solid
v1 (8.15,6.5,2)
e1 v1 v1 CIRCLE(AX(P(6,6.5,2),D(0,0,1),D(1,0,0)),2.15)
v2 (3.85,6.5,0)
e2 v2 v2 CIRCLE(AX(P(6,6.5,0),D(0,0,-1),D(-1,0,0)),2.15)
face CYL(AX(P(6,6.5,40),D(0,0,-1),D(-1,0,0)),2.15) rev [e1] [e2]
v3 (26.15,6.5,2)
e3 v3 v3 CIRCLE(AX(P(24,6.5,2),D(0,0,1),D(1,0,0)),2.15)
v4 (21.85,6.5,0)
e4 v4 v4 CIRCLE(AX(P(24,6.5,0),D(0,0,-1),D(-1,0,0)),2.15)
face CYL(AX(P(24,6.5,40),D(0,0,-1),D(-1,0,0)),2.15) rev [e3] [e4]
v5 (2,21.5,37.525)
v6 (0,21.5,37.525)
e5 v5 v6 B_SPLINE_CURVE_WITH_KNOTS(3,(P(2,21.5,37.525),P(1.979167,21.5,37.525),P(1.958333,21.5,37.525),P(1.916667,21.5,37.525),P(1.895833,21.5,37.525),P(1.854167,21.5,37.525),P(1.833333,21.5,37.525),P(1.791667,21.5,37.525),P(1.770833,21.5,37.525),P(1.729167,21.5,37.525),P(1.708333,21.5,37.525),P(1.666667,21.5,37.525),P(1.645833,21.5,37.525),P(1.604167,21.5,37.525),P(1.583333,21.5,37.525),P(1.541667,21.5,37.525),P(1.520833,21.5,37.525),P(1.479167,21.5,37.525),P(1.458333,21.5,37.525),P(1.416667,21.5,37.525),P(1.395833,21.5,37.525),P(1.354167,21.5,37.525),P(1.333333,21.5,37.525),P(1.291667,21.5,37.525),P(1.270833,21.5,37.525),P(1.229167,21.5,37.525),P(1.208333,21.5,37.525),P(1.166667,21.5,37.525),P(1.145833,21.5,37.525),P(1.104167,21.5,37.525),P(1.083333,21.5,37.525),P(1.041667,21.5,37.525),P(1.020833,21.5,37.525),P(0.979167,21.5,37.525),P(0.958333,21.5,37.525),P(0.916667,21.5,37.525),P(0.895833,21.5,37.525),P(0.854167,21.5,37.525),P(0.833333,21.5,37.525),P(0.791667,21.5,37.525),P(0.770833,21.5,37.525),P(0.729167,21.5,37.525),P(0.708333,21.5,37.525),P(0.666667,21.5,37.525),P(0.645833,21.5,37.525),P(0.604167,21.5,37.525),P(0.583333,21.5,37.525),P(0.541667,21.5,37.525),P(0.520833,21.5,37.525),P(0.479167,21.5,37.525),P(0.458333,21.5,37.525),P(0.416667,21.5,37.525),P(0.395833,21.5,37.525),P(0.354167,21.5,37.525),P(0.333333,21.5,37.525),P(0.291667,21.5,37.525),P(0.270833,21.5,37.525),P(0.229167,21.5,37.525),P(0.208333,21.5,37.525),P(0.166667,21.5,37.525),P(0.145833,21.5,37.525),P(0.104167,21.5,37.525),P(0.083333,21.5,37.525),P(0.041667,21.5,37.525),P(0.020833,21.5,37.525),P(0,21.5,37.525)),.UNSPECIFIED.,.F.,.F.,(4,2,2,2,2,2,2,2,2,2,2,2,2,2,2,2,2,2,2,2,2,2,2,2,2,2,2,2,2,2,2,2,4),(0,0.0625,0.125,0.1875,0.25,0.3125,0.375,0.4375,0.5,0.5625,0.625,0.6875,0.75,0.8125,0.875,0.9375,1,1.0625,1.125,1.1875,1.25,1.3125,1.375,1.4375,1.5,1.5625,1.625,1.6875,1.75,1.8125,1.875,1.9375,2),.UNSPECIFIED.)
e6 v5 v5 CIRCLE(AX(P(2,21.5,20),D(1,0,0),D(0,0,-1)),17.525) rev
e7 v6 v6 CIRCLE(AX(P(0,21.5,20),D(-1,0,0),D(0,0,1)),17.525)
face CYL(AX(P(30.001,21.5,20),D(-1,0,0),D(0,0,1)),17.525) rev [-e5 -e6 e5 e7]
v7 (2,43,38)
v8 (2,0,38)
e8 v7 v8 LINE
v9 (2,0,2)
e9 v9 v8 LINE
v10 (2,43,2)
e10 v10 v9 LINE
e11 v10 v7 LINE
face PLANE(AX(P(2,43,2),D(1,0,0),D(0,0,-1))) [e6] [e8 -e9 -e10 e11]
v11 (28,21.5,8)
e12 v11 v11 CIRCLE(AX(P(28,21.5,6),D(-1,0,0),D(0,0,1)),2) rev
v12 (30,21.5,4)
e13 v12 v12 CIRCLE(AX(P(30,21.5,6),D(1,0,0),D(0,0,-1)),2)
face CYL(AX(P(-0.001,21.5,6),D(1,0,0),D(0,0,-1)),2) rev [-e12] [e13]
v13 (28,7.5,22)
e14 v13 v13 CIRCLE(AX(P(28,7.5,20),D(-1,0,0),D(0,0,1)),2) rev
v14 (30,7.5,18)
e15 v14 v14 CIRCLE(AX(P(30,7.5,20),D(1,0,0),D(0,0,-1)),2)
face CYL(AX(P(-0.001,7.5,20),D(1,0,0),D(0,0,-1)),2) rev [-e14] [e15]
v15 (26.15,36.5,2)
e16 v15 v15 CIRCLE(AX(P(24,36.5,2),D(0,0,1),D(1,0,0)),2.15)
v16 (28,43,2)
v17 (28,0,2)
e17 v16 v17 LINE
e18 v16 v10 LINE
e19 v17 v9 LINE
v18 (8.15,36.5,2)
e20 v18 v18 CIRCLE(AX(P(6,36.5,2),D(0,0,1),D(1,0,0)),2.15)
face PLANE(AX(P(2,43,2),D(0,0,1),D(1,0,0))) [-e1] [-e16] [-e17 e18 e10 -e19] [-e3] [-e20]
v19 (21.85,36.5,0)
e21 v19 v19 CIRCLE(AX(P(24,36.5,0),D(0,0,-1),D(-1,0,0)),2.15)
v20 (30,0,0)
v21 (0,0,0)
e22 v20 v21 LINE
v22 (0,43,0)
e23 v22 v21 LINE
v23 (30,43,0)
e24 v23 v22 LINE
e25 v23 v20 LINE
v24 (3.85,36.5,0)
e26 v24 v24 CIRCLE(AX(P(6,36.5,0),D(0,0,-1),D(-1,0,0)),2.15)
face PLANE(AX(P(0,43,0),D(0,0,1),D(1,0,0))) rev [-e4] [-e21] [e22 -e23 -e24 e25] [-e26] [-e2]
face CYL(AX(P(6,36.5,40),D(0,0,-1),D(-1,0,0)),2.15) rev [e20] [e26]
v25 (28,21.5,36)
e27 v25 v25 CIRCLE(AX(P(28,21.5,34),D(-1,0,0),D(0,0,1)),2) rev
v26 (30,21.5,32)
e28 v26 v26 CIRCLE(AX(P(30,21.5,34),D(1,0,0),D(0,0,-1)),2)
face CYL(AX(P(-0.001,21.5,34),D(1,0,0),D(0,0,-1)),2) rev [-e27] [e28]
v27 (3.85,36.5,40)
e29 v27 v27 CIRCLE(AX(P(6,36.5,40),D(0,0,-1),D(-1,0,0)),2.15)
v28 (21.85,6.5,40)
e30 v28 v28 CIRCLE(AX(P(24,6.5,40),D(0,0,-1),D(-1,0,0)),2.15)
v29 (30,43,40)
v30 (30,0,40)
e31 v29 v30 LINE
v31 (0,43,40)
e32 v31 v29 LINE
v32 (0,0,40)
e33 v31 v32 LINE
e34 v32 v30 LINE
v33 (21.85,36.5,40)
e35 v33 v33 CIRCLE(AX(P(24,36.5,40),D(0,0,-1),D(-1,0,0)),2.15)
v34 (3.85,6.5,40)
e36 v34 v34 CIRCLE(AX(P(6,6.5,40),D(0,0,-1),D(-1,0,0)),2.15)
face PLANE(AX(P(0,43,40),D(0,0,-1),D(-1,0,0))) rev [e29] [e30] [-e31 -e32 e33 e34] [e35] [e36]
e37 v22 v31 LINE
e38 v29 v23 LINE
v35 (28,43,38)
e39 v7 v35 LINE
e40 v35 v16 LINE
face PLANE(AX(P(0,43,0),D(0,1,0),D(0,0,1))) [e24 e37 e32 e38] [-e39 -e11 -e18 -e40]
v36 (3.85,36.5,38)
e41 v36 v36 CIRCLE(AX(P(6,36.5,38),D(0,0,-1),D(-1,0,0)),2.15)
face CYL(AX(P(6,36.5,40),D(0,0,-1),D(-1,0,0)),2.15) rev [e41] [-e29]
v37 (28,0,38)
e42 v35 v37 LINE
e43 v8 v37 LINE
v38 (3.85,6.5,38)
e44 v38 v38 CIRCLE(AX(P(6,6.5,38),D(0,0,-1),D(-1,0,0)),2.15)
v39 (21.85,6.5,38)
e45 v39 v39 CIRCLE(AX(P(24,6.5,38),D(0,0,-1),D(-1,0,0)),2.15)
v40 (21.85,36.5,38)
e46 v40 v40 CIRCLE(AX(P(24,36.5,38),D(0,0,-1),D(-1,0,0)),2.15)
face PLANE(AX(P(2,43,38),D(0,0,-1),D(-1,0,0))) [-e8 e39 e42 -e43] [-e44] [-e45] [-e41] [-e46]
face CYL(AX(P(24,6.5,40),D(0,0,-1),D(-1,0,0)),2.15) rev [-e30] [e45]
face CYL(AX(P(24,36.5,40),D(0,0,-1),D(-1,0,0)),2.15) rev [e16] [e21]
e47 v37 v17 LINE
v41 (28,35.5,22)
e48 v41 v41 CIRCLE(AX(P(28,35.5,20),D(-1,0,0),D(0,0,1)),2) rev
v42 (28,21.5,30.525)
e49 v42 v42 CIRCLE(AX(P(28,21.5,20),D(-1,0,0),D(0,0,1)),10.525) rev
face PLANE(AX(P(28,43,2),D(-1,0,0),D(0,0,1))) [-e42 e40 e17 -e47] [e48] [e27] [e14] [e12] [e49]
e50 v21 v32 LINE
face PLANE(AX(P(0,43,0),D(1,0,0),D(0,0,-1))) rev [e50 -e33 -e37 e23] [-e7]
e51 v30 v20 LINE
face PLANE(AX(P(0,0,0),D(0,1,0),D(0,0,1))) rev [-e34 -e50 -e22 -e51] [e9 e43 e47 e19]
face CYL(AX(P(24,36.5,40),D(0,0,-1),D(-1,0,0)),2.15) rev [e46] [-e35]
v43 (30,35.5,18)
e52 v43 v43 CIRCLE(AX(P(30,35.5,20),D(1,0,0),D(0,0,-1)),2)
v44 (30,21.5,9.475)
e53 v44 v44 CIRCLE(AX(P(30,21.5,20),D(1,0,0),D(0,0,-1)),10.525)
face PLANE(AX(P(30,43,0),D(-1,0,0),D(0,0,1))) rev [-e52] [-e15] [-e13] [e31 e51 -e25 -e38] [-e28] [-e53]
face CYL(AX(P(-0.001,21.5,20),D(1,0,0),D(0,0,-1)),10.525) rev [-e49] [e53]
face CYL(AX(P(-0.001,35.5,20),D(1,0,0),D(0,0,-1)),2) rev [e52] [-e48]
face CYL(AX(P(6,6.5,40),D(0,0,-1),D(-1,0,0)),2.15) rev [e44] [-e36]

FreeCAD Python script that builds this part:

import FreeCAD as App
import Part
import Sketcher
Q = App.Units.Quantity


def add_polygon(sketch, points):
    """Adds a closed chain of lines whose ends are joined by coincident constraints."""
    first, n = sketch.GeometryCount, len(points)
    for a, b in zip(points, points[1:] + points[:1]):
        sketch.addGeometry(Part.LineSegment(App.Vector(*a, 0), App.Vector(*b, 0)), False)
    for i in range(n):
        sketch.addConstraint(Sketcher.Constraint("Coincident", first + i, 2, first + (i + 1) % n, 1))

doc = App.newDocument("Part")
params = doc.addObject("Spreadsheet::Sheet", "Params")
for row, (alias, value) in enumerate([
    ("sketch1_width", "30 mm"),
    ("sketch1_width2", "26 mm"),
    ("sketch1_height", "40 mm"),
    ("sketch1_height2", "36 mm"),
    ("pad1_length", "43 mm"),
    ("sketch2_diameter", "4.3 mm"),
    ("sketch3_diameter", "35.05 mm"),
    ("sketch4_diameter", "21.05 mm"),
    ("sketch5_diameter", "4 mm"),
    ("sketch6_diameter", "4 mm"),
    ("sketch7_diameter", "4 mm"),
    ("sketch8_diameter", "4 mm"),
], start=1):
    params.set(f"A{row}", alias)
    params.set(f"B{row}", "=" + value)
    params.setAlias(f"B{row}", alias)

body = doc.addObject("PartDesign::Body", "Body")

# Sketch on XZ plane
sketch1 = body.newObject("Sketcher::SketchObject", "Sketch")
sketch1.AttachmentSupport = (doc.getObject("XZ_Plane"), [""])
sketch1.MapMode = "FlatFace"
add_polygon(sketch1, [(0, 0), (0, 40), (30, 40), (30, 0)])  # lines 0-3
add_polygon(sketch1, [(28, 38), (2, 38), (2, 2), (28, 2)])  # lines 4-7
sketch1.addConstraint([
    Sketcher.Constraint("Vertical", 0),
    Sketcher.Constraint("Horizontal", 1),
    Sketcher.Constraint("Vertical", 2),
    Sketcher.Constraint("Horizontal", 3),
    Sketcher.Constraint("Horizontal", 4),
    Sketcher.Constraint("Vertical", 5),
    Sketcher.Constraint("Horizontal", 6),
    Sketcher.Constraint("Vertical", 7),
    Sketcher.Constraint("Coincident", 3, 2, -1, 1),
    Sketcher.Constraint("DistanceX", 1, 1, 1, 2, Q("30 mm")),
    Sketcher.Constraint("DistanceX", 4, 2, 4, 1, Q("26 mm")),
    Sketcher.Constraint("DistanceY", 0, 1, 0, 2, Q("40 mm")),
    Sketcher.Constraint("DistanceY", 5, 2, 5, 1, Q("36 mm")),
    Sketcher.Constraint("DistanceX", -1, 1, 4, 2, Q("2 mm")),
    Sketcher.Constraint("DistanceY", -1, 1, 4, 2, Q("38 mm")),
])
sketch1.setExpression("Constraints[17]", "Params.sketch1_width")
sketch1.setExpression("Constraints[18]", "Params.sketch1_width2")
sketch1.setExpression("Constraints[19]", "Params.sketch1_height")
sketch1.setExpression("Constraints[20]", "Params.sketch1_height2")
pad1 = body.newObject("PartDesign::Pad", "Pad")
pad1.Profile = sketch1
pad1.setExpression("Length", "Params.pad1_length")
pad1.Reversed = True

# Sketch on XY plane
sketch2 = body.newObject("Sketcher::SketchObject", "Sketch001")
sketch2.AttachmentSupport = (doc.getObject("XY_Plane"), [""])
sketch2.MapMode = "FlatFace"
sketch2.addGeometry([
    Part.Circle(App.Vector(6, 6.5, 0), App.Vector(0, 0, 1), 2.15),
    Part.Circle(App.Vector(24, 6.5, 0), App.Vector(0, 0, 1), 2.15),
    Part.Circle(App.Vector(24, 36.5, 0), App.Vector(0, 0, 1), 2.15),
    Part.Circle(App.Vector(6, 36.5, 0), App.Vector(0, 0, 1), 2.15),
], False)
sketch2.addConstraint([
    Sketcher.Constraint("Equal", 0, 1),
    Sketcher.Constraint("Equal", 1, 2),
    Sketcher.Constraint("Equal", 2, 3),
    Sketcher.Constraint("Horizontal", 0, 3, 1, 3),
    Sketcher.Constraint("Horizontal", 2, 3, 3, 3),
    Sketcher.Constraint("Vertical", 1, 3, 2, 3),
    Sketcher.Constraint("Vertical", 0, 3, 3, 3),
    Sketcher.Constraint("Diameter", 0, Q("4.3 mm")),
    Sketcher.Constraint("DistanceX", -1, 1, 0, 3, Q("6 mm")),
    Sketcher.Constraint("DistanceX", -1, 1, 1, 3, Q("24 mm")),
    Sketcher.Constraint("DistanceY", 1, 3, 2, 3, Q("30 mm")),
    Sketcher.Constraint("DistanceY", -1, 1, 0, 3, Q("6.5 mm")),
])
sketch2.setExpression("Constraints[7]", "Params.sketch2_diameter")
pocket1 = body.newObject("PartDesign::Pocket", "Pocket")
pocket1.Profile = sketch2
pocket1.Type = "ThroughAll"
pocket1.Reversed = True

# Sketch on YZ plane
sketch3 = body.newObject("Sketcher::SketchObject", "Sketch002")
sketch3.AttachmentSupport = (doc.getObject("YZ_Plane"), [""])
sketch3.MapMode = "FlatFace"
sketch3.addGeometry(Part.Circle(App.Vector(21.5, 20, 0), App.Vector(0, 0, 1), 17.525), False)
sketch3.addConstraint([
    Sketcher.Constraint("Diameter", 0, Q("35.05 mm")),
    Sketcher.Constraint("DistanceY", -1, 1, 0, 3, Q("20 mm")),
    Sketcher.Constraint("DistanceX", -1, 1, 0, 3, Q("21.5 mm")),
])
sketch3.setExpression("Constraints[0]", "Params.sketch3_diameter")
pocket2 = body.newObject("PartDesign::Pocket", "Pocket001")
pocket2.Profile = sketch3
pocket2.Type = "UpToFirst"
pocket2.Reversed = True

# Sketch on YZ plane
sketch4 = body.newObject("Sketcher::SketchObject", "Sketch003")
sketch4.AttachmentSupport = (doc.getObject("YZ_Plane"), [""])
sketch4.MapMode = "FlatFace"
sketch4.AttachmentOffset = App.Placement(App.Vector(0, 0, 30), App.Rotation())
sketch4.addGeometry(Part.Circle(App.Vector(21.5, 20, 0), App.Vector(0, 0, 1), 10.525), False)
sketch4.addConstraint([
    Sketcher.Constraint("Diameter", 0, Q("21.05 mm")),
    Sketcher.Constraint("DistanceY", -1, 1, 0, 3, Q("20 mm")),
    Sketcher.Constraint("DistanceX", -1, 1, 0, 3, Q("21.5 mm")),
])
sketch4.setExpression("Constraints[0]", "Params.sketch4_diameter")
pocket3 = body.newObject("PartDesign::Pocket", "Pocket002")
pocket3.Profile = sketch4
pocket3.Type = "UpToFirst"

# Sketch on YZ plane
sketch5 = body.newObject("Sketcher::SketchObject", "Sketch004")
sketch5.AttachmentSupport = (doc.getObject("YZ_Plane"), [""])
sketch5.MapMode = "FlatFace"
sketch5.AttachmentOffset = App.Placement(App.Vector(0, 0, 30), App.Rotation())
sketch5.addGeometry(Part.Circle(App.Vector(21.5, 6, 0), App.Vector(0, 0, 1), 2), False)
sketch5.addConstraint([
    Sketcher.Constraint("Diameter", 0, Q("4 mm")),
    Sketcher.Constraint("DistanceY", -1, 1, 0, 3, Q("6 mm")),
    Sketcher.Constraint("DistanceX", -1, 1, 0, 3, Q("21.5 mm")),
])
sketch5.setExpression("Constraints[0]", "Params.sketch5_diameter")
pocket4 = body.newObject("PartDesign::Pocket", "Pocket003")
pocket4.Profile = sketch5
pocket4.Type = "UpToFirst"

# Sketch on YZ plane
sketch6 = body.newObject("Sketcher::SketchObject", "Sketch005")
sketch6.AttachmentSupport = (doc.getObject("YZ_Plane"), [""])
sketch6.MapMode = "FlatFace"
sketch6.AttachmentOffset = App.Placement(App.Vector(0, 0, 30), App.Rotation())
sketch6.addGeometry(Part.Circle(App.Vector(7.5, 20, 0), App.Vector(0, 0, 1), 2), False)
sketch6.addConstraint([
    Sketcher.Constraint("Diameter", 0, Q("4 mm")),
    Sketcher.Constraint("DistanceY", -1, 1, 0, 3, Q("20 mm")),
    Sketcher.Constraint("DistanceX", -1, 1, 0, 3, Q("7.5 mm")),
])
sketch6.setExpression("Constraints[0]", "Params.sketch6_diameter")
pocket5 = body.newObject("PartDesign::Pocket", "Pocket004")
pocket5.Profile = sketch6
pocket5.Type = "UpToFirst"

# Sketch on YZ plane
sketch7 = body.newObject("Sketcher::SketchObject", "Sketch006")
sketch7.AttachmentSupport = (doc.getObject("YZ_Plane"), [""])
sketch7.MapMode = "FlatFace"
sketch7.AttachmentOffset = App.Placement(App.Vector(0, 0, 30), App.Rotation())
sketch7.addGeometry(Part.Circle(App.Vector(21.5, 34, 0), App.Vector(0, 0, 1), 2), False)
sketch7.addConstraint([
    Sketcher.Constraint("Diameter", 0, Q("4 mm")),
    Sketcher.Constraint("DistanceY", -1, 1, 0, 3, Q("34 mm")),
    Sketcher.Constraint("DistanceX", -1, 1, 0, 3, Q("21.5 mm")),
])
sketch7.setExpression("Constraints[0]", "Params.sketch7_diameter")
pocket6 = body.newObject("PartDesign::Pocket", "Pocket005")
pocket6.Profile = sketch7
pocket6.Type = "UpToFirst"

# Sketch on YZ plane
sketch8 = body.newObject("Sketcher::SketchObject", "Sketch007")
sketch8.AttachmentSupport = (doc.getObject("YZ_Plane"), [""])
sketch8.MapMode = "FlatFace"
sketch8.AttachmentOffset = App.Placement(App.Vector(0, 0, 30), App.Rotation())
sketch8.addGeometry(Part.Circle(App.Vector(35.5, 20, 0), App.Vector(0, 0, 1), 2), False)
sketch8.addConstraint([
    Sketcher.Constraint("Diameter", 0, Q("4 mm")),
    Sketcher.Constraint("DistanceY", -1, 1, 0, 3, Q("20 mm")),
    Sketcher.Constraint("DistanceX", -1, 1, 0, 3, Q("35.5 mm")),
])
sketch8.setExpression("Constraints[0]", "Params.sketch8_diameter")
pocket7 = body.newObject("PartDesign::Pocket", "Pocket006")
pocket7.Profile = sketch8
pocket7.Type = "UpToFirst"

doc.recompute()
